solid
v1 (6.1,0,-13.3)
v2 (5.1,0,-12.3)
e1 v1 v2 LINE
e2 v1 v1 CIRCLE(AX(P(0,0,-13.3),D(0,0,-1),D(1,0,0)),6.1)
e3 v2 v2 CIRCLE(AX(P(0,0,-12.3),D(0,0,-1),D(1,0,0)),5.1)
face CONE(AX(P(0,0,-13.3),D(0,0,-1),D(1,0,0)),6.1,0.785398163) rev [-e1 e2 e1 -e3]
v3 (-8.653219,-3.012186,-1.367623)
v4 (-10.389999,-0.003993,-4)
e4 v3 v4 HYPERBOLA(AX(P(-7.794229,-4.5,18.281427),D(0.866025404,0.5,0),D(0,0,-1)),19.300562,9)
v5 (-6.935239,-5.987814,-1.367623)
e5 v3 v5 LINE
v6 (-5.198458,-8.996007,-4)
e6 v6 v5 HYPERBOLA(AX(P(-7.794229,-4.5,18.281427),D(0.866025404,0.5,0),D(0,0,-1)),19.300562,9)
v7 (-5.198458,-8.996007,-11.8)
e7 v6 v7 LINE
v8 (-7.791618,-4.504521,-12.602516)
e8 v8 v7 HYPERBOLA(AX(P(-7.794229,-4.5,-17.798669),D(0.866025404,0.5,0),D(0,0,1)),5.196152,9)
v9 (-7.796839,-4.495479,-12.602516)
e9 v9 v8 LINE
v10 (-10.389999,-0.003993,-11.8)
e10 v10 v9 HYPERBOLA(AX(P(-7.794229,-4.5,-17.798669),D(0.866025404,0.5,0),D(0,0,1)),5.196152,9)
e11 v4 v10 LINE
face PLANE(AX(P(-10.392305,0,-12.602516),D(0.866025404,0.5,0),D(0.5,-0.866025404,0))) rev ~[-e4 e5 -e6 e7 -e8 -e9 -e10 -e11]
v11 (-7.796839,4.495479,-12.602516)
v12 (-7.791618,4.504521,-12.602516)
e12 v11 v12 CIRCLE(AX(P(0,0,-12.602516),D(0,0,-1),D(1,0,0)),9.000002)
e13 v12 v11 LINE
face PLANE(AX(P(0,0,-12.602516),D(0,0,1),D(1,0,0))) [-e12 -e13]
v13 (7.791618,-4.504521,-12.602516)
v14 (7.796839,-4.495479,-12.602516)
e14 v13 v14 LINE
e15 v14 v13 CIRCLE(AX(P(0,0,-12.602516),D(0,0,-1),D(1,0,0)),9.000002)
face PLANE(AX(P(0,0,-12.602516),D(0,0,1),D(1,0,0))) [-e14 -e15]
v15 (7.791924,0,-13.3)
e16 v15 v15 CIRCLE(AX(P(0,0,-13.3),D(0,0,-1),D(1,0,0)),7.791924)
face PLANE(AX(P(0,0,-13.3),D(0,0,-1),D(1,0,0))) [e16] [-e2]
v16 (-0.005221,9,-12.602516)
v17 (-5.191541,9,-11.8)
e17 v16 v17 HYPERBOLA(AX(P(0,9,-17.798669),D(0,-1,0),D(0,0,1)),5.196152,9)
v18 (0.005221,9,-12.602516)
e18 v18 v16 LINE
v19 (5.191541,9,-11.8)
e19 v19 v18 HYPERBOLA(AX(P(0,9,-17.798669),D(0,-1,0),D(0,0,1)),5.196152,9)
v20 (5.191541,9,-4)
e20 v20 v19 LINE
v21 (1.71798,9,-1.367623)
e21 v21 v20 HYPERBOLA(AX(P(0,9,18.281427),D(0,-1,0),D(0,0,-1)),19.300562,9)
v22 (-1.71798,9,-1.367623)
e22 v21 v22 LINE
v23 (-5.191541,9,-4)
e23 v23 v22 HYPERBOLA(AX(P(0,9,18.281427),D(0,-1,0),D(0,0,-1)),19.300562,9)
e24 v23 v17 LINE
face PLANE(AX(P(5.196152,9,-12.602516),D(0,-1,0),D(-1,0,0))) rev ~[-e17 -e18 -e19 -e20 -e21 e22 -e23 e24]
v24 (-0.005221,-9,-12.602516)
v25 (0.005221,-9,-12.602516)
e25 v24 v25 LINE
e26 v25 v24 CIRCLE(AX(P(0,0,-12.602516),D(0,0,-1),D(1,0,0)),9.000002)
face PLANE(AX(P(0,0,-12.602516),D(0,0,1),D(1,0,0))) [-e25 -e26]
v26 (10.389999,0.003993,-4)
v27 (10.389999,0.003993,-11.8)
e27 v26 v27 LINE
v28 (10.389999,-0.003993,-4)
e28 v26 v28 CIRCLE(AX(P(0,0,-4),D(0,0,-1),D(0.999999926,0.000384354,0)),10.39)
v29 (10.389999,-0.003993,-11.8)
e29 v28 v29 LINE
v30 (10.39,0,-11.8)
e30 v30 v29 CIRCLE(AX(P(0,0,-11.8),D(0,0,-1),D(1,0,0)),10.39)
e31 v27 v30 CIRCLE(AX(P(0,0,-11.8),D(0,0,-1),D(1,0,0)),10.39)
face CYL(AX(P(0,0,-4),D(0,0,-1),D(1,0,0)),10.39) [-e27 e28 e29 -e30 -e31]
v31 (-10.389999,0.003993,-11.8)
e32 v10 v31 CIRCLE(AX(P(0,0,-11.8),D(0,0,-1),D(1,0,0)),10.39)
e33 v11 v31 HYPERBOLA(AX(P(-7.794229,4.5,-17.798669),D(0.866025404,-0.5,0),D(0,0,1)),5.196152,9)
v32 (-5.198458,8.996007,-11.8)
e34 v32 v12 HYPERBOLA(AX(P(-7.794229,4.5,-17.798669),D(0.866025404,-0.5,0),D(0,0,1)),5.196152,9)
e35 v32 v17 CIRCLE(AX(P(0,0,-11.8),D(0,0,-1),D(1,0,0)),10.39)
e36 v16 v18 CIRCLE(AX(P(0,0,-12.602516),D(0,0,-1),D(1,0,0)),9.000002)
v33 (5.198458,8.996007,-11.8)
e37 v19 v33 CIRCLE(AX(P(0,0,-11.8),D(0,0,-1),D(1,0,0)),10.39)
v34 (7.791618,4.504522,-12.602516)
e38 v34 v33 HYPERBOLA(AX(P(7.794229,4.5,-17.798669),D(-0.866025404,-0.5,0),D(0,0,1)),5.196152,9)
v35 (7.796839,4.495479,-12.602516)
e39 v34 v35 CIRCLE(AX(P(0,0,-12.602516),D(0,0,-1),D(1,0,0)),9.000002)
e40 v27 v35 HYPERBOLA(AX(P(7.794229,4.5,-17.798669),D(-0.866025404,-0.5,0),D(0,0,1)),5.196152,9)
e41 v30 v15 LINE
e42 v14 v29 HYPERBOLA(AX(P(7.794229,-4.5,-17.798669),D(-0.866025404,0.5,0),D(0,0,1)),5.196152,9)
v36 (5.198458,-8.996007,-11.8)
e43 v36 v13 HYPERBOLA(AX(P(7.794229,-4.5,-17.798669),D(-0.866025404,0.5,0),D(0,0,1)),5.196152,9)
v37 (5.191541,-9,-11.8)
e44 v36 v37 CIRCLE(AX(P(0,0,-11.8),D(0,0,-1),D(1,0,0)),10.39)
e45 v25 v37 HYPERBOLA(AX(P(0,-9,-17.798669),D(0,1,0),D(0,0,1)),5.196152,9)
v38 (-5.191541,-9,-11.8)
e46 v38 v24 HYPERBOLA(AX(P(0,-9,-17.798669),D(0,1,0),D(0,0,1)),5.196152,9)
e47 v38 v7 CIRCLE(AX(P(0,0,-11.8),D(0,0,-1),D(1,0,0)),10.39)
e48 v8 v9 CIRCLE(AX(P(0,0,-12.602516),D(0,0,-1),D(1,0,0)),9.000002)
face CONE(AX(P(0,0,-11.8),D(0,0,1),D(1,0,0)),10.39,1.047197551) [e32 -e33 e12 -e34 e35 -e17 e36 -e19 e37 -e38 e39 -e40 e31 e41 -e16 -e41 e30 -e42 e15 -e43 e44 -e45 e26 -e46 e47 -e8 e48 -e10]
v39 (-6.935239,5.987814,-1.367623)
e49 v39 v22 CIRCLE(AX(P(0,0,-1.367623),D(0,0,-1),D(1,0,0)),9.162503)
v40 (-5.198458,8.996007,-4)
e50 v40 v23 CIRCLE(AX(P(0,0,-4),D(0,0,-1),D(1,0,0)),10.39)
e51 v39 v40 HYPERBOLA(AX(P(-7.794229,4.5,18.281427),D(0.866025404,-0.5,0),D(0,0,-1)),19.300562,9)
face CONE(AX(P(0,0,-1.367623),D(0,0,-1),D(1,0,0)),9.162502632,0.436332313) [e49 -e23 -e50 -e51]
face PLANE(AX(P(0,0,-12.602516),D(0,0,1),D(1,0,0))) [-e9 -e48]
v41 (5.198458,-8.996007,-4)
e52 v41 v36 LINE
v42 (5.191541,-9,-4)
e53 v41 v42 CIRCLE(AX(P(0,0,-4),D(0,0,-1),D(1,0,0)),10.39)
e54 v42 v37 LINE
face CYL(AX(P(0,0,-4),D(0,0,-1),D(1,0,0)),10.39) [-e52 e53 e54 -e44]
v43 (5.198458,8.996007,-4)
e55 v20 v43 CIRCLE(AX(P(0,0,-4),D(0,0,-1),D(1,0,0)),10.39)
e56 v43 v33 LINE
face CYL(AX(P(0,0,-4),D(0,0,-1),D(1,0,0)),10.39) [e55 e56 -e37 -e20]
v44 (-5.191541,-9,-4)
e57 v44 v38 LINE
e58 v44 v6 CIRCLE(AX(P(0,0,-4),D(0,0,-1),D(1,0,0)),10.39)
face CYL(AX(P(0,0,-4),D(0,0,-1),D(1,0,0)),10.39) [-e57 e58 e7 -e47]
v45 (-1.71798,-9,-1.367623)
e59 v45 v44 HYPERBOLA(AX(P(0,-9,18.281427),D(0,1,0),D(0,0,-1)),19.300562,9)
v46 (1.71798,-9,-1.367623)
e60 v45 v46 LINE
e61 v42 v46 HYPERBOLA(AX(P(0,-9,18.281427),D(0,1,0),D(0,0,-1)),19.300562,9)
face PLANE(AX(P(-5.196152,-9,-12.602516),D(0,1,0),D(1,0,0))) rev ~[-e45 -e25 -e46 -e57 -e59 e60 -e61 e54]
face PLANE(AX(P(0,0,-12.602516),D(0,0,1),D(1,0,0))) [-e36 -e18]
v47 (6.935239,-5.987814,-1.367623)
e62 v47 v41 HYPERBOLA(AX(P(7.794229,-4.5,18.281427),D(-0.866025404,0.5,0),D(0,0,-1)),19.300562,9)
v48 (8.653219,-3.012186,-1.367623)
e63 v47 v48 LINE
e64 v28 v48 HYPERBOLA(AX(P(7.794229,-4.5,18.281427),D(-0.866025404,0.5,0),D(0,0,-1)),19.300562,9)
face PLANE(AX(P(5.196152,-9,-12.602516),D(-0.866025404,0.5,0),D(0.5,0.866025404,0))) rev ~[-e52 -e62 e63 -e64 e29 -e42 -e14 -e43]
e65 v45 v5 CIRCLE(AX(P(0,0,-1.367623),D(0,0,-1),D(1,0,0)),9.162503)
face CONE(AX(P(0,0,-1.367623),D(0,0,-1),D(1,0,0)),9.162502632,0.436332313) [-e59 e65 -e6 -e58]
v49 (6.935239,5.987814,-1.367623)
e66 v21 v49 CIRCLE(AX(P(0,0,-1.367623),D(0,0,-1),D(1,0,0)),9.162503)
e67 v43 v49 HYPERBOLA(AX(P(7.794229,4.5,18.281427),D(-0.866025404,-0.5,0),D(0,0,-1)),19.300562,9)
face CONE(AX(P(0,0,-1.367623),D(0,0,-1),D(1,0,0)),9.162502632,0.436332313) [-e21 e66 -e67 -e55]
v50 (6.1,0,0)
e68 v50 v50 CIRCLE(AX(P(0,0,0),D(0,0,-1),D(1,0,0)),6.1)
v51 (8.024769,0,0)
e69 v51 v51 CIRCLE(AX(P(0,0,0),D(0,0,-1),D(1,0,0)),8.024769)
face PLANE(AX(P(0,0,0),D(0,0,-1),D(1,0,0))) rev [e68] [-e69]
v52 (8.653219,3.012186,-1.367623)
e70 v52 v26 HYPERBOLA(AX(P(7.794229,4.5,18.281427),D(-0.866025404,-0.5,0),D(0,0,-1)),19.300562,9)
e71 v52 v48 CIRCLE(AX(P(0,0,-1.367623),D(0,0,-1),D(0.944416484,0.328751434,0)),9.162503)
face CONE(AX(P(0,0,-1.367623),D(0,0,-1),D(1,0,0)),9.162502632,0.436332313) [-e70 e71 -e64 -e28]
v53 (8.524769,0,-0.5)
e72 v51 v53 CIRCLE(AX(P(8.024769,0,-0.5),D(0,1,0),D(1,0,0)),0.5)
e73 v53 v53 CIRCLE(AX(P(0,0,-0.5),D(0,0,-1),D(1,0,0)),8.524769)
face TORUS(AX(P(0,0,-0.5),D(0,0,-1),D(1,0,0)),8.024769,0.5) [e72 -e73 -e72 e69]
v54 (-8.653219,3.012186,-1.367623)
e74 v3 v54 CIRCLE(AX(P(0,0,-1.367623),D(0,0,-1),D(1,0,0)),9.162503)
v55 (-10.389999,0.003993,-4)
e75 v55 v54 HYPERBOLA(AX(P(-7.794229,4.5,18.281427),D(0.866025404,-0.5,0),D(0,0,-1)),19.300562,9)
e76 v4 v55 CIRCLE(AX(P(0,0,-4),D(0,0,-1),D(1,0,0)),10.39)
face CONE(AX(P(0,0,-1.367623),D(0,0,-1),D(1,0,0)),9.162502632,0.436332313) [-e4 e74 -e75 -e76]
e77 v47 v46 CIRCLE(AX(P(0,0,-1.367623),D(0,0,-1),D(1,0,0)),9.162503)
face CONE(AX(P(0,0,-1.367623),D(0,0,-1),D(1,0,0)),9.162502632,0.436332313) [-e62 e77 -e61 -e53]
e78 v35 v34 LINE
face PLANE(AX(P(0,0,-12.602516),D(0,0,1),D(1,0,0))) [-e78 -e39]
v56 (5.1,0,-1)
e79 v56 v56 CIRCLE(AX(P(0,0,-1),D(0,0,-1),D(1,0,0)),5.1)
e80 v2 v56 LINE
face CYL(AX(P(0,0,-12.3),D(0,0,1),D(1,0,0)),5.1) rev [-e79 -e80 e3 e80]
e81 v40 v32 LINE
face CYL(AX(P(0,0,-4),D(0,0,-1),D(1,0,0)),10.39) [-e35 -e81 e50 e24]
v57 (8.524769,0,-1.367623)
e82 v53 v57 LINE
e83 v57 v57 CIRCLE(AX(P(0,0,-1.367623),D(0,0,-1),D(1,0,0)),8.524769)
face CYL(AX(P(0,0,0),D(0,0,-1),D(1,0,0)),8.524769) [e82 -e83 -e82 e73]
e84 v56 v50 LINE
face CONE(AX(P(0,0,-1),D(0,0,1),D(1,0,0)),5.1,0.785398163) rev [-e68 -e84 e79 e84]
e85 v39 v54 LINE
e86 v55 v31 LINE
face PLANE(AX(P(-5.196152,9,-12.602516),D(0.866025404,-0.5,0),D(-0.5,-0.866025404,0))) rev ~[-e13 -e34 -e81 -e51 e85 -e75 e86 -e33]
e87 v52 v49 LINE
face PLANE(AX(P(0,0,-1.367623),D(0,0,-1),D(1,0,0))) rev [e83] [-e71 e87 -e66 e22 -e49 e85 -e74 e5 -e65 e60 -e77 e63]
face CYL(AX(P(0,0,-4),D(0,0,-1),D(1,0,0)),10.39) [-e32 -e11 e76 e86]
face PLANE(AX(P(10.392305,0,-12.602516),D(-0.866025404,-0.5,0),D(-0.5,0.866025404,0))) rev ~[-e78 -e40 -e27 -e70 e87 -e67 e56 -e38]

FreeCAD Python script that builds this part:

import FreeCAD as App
import Part
import Sketcher

V = App.Vector
Q = App.Units.Quantity


def edges_at(feature, points):
    """Names of the edges that pass closest to the given points."""
    edges = feature.Shape.Edges
    near = lambda p: min(range(len(edges)), key=lambda i: edges[i].distToShape(Part.Vertex(*p))[0])
    return sorted({f"Edge{near(p) + 1}" for p in points})


def add_polygon(sketch, points):
    """Adds a closed chain of lines whose ends are joined by coincident constraints."""
    first, n = sketch.GeometryCount, len(points)
    for a, b in zip(points, points[1:] + points[:1]):
        sketch.addGeometry(Part.LineSegment(App.Vector(*a, 0), App.Vector(*b, 0)), False)
    for i in range(n):
        sketch.addConstraint(Sketcher.Constraint("Coincident", first + i, 2, first + (i + 1) % n, 1))

doc = App.newDocument("Part")
body = doc.addObject("PartDesign::Body", "Body")

# Sketch on YZ plane
sketch1 = doc.addObject("Sketcher::SketchObject", "Sketch")
body.addObject(sketch1)
sketch1.AttachmentSupport = (doc.YZ_Plane, [""])
sketch1.MapMode = "FlatFace"
add_polygon(sketch1, [(6.1, -13.3), (7.8, -13.3), (10.4, -11.8), (10.4, -4), (9.2, -1.4), (8.5, -1.4), (8.5, 0), (6.1, 0), (5.1, -1), (5.1, -12.3)])  # lines 0-9
sketch1.addConstraint([
    Sketcher.Constraint("Horizontal", 0),
    Sketcher.Constraint("Vertical", 2),
    Sketcher.Constraint("Horizontal", 4),
    Sketcher.Constraint("Vertical", 5),
    Sketcher.Constraint("Horizontal", 6),
    Sketcher.Constraint("Vertical", 8),
    Sketcher.Constraint("PointOnObject", 5, 2, -1),
    Sketcher.Constraint("Perpendicular", 7, 9),
    Sketcher.Constraint("Vertical", 6, 2, 9, 2),
    Sketcher.Constraint("Equal", 7, 9),
    Sketcher.Constraint("Angle", 1, Q("30 deg")),
    Sketcher.Constraint("Angle", 3, Q("115 deg")),
    Sketcher.Constraint("Distance", 1, Q("3 mm")),
    Sketcher.Constraint("DistanceY", 2, 1, 2, 2, Q("7.8 mm")),
    Sketcher.Constraint("DistanceY", 8, 2, 8, 1, Q("11.3 mm")),
    Sketcher.Constraint("DistanceY", 2, 2, -1, 1, Q("4 mm")),
    Sketcher.Constraint("DistanceX", -1, 1, 6, 2, Q("6.1 mm")),
    Sketcher.Constraint("DistanceX", -1, 1, 1, 2, Q("10.39 mm")),
    Sketcher.Constraint("DistanceX", 6, 2, 6, 1, Q("2.424769 mm")),
    Sketcher.Constraint("DistanceX", 4, 2, 4, 1, Q("0.637733 mm")),
])
revolution = doc.addObject("PartDesign::Revolution", "Revolution")
body.addObject(revolution)
revolution.Profile = sketch1
revolution.ReferenceAxis = (sketch1, ["V_Axis"])
revolution.Angle = 360

# Sketch on XY plane
sketch2 = doc.addObject("Sketcher::SketchObject", "Sketch001")
body.addObject(sketch2)
sketch2.AttachmentSupport = (doc.XY_Plane, [""])
sketch2.MapMode = "FlatFace"
sketch2.AttachmentOffset = App.Placement(V(0, 0, -12.602516), App.Rotation())
add_polygon(sketch2, [(-15, 15), (-15, -15), (15, -15), (15, 15)])  # lines 0-3
add_polygon(sketch2, [(5, 9), (10, 0), (5, -9), (-5, -9), (-10, 0), (-5, 9)])  # lines 4-9
sketch2.addConstraint([
    Sketcher.Constraint("Vertical", 0),
    Sketcher.Constraint("Horizontal", 1),
    Sketcher.Constraint("Vertical", 2),
    Sketcher.Constraint("Horizontal", 3),
    Sketcher.Constraint("Horizontal", 6),
    Sketcher.Constraint("Horizontal", 9),
    Sketcher.Constraint("Symmetric", 0, 2, 2, 2, -1, 1),
    Sketcher.Constraint("Symmetric", 4, 2, 7, 2, -1, 1),
    Sketcher.Constraint("Symmetric", 5, 2, 8, 2, -1, 1),
    Sketcher.Constraint("PointOnObject", 4, 2, -1),
    Sketcher.Constraint("Parallel", 4, 7),
    Sketcher.Constraint("Vertical", 6, 2, 8, 2),
    Sketcher.Constraint("Equal", 3, 0),
    Sketcher.Constraint("Angle", 4, Q("-60 deg")),
    Sketcher.Constraint("DistanceY", 5, 2, -1, 1, Q("9 mm")),
    Sketcher.Constraint("DistanceX", 1, 1, 1, 2, Q("29.232 mm")),
    Sketcher.Constraint("DistanceX", 6, 2, 6, 1, Q("10.392305 mm")),
])
pocket1 = doc.addObject("PartDesign::Pocket", "Pocket")
body.addObject(pocket1)
pocket1.Profile = sketch2
pocket1.Length = 11.234893
pocket1.Reversed = True
doc.recompute()

fillet = doc.addObject("PartDesign::Fillet", "Fillet")
body.addObject(fillet)
fillet.Base = (pocket1, edges_at(pocket1, [(-8.525, 0, 0)]))
fillet.Radius = 0.5

doc.recompute()
